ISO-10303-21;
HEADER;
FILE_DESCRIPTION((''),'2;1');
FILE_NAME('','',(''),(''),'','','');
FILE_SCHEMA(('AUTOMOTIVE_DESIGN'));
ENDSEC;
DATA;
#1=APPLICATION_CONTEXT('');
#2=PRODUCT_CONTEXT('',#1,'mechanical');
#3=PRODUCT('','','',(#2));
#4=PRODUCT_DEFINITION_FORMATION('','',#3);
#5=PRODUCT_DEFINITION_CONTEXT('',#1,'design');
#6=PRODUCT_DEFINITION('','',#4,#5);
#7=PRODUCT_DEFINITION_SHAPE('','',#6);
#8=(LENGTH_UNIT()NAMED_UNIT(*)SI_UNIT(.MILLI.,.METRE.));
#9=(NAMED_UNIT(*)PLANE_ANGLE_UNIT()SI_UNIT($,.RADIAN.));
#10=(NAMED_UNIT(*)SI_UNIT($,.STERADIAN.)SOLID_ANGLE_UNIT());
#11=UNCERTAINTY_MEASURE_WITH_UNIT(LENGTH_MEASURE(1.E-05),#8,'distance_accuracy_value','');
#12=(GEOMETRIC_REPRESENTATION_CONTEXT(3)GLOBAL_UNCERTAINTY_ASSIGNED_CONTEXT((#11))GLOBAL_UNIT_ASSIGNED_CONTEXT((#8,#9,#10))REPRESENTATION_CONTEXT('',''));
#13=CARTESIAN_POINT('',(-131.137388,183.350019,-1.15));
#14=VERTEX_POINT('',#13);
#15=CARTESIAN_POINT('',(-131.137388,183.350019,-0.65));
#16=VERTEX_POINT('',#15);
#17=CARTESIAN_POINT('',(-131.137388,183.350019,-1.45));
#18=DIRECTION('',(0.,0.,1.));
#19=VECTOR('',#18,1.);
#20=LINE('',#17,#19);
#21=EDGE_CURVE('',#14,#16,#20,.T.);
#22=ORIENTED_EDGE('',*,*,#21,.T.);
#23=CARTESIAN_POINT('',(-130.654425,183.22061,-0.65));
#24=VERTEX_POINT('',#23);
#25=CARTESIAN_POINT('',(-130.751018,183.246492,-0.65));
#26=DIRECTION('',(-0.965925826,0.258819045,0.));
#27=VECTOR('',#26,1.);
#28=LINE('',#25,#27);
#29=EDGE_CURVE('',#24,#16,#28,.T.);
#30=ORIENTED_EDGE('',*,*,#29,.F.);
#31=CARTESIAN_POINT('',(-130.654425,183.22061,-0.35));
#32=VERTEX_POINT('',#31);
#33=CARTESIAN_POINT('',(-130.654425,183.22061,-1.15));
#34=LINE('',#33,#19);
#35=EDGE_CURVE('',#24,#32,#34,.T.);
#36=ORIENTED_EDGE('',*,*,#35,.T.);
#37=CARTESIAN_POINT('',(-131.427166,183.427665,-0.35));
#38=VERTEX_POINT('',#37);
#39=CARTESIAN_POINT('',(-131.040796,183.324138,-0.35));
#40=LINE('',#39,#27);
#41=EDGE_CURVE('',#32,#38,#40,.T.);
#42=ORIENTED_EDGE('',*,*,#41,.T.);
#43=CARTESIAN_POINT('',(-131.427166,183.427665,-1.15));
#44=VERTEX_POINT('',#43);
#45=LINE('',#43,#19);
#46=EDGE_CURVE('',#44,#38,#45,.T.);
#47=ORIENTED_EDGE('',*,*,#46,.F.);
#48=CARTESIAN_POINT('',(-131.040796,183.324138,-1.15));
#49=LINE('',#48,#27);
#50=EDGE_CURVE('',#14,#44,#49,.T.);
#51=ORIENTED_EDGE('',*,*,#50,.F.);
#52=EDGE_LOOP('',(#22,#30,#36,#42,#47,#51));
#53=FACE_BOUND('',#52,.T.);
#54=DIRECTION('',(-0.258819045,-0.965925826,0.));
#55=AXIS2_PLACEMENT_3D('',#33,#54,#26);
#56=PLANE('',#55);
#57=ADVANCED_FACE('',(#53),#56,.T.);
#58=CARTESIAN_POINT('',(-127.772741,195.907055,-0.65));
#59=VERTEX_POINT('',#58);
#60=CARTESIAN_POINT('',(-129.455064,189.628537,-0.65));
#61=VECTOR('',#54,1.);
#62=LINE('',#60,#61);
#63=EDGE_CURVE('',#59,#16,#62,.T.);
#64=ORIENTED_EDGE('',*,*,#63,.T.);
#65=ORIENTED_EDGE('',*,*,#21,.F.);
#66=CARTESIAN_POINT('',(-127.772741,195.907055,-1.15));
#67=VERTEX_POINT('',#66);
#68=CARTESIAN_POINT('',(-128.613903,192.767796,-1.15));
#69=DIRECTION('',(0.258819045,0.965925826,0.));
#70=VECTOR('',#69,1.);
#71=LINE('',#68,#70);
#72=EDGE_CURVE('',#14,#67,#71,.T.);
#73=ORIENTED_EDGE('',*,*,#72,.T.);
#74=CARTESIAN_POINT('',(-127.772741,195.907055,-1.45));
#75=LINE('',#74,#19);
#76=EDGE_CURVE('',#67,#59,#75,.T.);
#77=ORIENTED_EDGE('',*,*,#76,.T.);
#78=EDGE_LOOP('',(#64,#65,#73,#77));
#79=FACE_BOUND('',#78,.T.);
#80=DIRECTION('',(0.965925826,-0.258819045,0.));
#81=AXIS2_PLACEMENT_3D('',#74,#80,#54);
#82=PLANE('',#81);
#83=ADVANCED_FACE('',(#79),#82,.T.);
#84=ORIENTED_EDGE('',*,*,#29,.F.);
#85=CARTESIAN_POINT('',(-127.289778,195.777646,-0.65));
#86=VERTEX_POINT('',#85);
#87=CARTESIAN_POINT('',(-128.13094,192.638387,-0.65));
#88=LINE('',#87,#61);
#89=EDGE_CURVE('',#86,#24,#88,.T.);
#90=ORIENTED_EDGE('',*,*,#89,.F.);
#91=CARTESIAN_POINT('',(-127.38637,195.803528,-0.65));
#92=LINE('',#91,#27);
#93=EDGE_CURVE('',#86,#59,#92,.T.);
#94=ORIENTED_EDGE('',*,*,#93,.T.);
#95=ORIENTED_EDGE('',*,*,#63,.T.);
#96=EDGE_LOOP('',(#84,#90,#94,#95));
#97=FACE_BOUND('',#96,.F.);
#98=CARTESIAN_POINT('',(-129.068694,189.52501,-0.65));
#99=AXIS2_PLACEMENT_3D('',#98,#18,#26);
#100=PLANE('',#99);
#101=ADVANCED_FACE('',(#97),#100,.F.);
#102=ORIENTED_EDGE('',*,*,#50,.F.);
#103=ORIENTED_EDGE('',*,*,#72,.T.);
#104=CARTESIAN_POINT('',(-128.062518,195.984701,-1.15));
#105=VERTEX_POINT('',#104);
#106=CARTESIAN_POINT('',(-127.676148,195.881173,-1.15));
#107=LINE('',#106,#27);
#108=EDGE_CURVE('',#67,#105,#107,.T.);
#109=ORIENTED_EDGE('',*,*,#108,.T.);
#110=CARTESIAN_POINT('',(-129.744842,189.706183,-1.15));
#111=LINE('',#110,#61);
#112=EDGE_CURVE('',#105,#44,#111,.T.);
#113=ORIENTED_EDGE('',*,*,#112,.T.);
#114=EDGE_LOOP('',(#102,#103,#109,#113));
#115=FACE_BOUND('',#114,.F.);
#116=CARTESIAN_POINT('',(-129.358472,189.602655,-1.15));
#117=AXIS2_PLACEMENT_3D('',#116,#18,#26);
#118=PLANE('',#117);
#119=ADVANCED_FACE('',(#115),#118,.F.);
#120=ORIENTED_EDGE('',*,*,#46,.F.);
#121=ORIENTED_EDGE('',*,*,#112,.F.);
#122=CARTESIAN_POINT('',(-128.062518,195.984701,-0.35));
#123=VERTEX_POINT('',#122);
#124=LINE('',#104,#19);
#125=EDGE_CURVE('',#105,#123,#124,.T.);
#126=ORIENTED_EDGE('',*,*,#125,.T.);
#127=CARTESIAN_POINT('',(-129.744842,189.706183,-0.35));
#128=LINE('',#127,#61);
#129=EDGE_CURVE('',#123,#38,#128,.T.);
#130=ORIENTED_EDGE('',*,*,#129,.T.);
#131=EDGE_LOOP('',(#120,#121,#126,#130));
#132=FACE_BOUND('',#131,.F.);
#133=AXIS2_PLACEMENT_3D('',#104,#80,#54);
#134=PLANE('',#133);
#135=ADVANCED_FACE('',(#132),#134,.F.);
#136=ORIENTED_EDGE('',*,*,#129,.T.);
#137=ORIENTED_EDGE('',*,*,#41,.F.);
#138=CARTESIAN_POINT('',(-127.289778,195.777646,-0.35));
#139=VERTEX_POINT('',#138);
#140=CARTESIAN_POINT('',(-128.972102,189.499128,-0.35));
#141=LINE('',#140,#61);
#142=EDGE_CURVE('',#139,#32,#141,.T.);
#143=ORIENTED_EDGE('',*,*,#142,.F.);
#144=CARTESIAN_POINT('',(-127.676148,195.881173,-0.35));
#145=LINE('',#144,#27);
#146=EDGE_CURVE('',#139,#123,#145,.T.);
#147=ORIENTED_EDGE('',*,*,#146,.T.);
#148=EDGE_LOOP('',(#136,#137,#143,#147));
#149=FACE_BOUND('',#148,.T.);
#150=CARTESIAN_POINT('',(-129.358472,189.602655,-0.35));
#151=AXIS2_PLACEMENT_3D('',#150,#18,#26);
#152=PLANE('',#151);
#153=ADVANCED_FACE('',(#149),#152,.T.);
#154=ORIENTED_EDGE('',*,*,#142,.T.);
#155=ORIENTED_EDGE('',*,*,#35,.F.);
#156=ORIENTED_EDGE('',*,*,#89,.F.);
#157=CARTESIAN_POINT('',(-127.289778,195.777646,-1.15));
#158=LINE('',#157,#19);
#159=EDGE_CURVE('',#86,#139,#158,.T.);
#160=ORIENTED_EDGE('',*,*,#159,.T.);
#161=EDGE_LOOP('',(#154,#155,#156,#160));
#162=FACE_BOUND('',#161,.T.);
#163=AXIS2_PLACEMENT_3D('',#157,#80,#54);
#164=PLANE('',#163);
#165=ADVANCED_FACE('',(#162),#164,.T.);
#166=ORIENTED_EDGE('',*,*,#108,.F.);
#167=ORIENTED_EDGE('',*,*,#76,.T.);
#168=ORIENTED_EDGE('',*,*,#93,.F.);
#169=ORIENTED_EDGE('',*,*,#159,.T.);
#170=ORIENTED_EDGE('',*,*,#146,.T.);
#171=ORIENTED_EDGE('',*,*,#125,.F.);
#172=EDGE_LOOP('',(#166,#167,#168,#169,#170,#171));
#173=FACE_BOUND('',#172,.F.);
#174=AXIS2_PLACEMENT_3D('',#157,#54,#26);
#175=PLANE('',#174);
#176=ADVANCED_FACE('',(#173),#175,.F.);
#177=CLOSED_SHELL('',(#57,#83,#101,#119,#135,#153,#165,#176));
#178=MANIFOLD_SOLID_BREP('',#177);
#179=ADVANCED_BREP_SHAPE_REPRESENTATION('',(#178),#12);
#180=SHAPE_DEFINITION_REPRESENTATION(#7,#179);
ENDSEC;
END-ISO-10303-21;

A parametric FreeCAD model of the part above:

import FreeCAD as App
import Part
import Sketcher
Q = App.Units.Quantity

doc = App.newDocument("Part")
body = doc.addObject("PartDesign::Body", "Body")

sketch1 = body.newObject("Sketcher::SketchObject", "Sketch")
sketch1.AttachmentSupport = (doc.getObject("XY_Plane"), [""])
sketch1.MapMode = "FlatFace"
sketch1.addGeometry([
    Part.LineSegment(App.Vector(0, 13, 0), App.Vector(0, 0, 0)),
    Part.LineSegment(App.Vector(0, 0, 0), App.Vector(0.8, 0, 0)),
    Part.LineSegment(App.Vector(0.8, 0, 0), App.Vector(0.8, 13, 0)),
    Part.LineSegment(App.Vector(0.8, 13, 0), App.Vector(0, 13, 0)),
], False)
sketch1.addConstraint([
    Sketcher.Constraint("Coincident", 0, 2, 1, 1),
    Sketcher.Constraint("Coincident", 1, 2, 2, 1),
    Sketcher.Constraint("Coincident", 2, 2, 3, 1),
    Sketcher.Constraint("Coincident", 3, 2, 0, 1),
    Sketcher.Constraint("Vertical", 0),
    Sketcher.Constraint("Horizontal", 1),
    Sketcher.Constraint("Vertical", 2),
    Sketcher.Constraint("Horizontal", 3),
    Sketcher.Constraint("Coincident", 0, 2, -1, 1),
    Sketcher.Constraint("DistanceY", 0, 2, 0, 1, Q("13 mm")),
    Sketcher.Constraint("DistanceX", 1, 1, 1, 2, Q("0.8 mm")),
])
pad1 = body.newObject("PartDesign::Pad", "Pad")
pad1.Profile = sketch1
pad1.Length = 0.8
body2 = doc.addObject("PartDesign::Body", "Body001")

sketch2 = body2.newObject("Sketcher::SketchObject", "Sketch001")
sketch2.AttachmentSupport = (doc.getObject("XY_Plane001"), [""])
sketch2.MapMode = "FlatFace"
sketch2.AttachmentOffset = App.Placement(App.Vector(0, 0, 0.3), App.Rotation())
sketch2.addGeometry([
    Part.LineSegment(App.Vector(0.3, 13, 0), App.Vector(0.3, 0, 0)),
    Part.LineSegment(App.Vector(0.3, 0, 0), App.Vector(1.1, 0, 0)),
    Part.LineSegment(App.Vector(1.1, 0, 0), App.Vector(1.1, 13, 0)),
    Part.LineSegment(App.Vector(1.1, 13, 0), App.Vector(0.3, 13, 0)),
], False)
sketch2.addConstraint([
    Sketcher.Constraint("Coincident", 0, 2, 1, 1),
    Sketcher.Constraint("Coincident", 1, 2, 2, 1),
    Sketcher.Constraint("Coincident", 2, 2, 3, 1),
    Sketcher.Constraint("Coincident", 3, 2, 0, 1),
    Sketcher.Constraint("Vertical", 0),
    Sketcher.Constraint("Horizontal", 1),
    Sketcher.Constraint("Vertical", 2),
    Sketcher.Constraint("Horizontal", 3),
    Sketcher.Constraint("PointOnObject", 0, 2, -1),
    Sketcher.Constraint("DistanceY", 0, 2, 0, 1, Q("13 mm")),
    Sketcher.Constraint("DistanceX", 1, 1, 1, 2, Q("0.8 mm")),
    Sketcher.Constraint("DistanceX", -1, 1, 0, 2, Q("0.3 mm")),
])
pad2 = body2.newObject("PartDesign::Pad", "Pad001")
pad2.Profile = sketch2
pad2.Length = 0.8
doc.recompute()

boolean = body2.newObject("PartDesign::Boolean", "Boolean")
boolean.Type = "Cut"
boolean.addObjects([body])
body3 = doc.addObject("PartDesign::Body", "Body002")
doc.recompute()

body2.Placement = App.Placement(App.Vector(-127, 195.7, -1.45), App.Rotation(App.Vector(0, 0, 1), 165))
boolean2 = body3.newObject("PartDesign::Boolean", "Boolean001")
boolean2.Type = "Fuse"
boolean2.addObjects([body2])

doc.recompute()
